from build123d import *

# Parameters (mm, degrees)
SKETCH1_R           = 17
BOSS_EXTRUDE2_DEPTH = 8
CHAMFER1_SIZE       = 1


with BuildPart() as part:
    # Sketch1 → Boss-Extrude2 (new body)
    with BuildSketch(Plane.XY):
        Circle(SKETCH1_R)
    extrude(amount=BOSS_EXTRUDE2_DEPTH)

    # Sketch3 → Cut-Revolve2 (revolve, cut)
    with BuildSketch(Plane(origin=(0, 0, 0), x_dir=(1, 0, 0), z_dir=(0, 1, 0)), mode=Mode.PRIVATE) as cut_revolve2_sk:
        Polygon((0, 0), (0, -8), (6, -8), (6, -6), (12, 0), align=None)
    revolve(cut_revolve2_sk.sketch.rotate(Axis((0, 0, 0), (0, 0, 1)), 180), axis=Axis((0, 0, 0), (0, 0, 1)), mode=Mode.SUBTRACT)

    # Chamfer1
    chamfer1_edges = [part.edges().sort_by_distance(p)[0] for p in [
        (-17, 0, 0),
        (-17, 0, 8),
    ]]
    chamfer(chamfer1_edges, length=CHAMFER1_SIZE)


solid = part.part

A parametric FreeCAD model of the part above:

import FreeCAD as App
import Part
import Sketcher

V = App.Vector
Q = App.Units.Quantity


def edges_at(feature, points):
    """Names of the edges that pass closest to the given points."""
    edges = feature.Shape.Edges
    near = lambda p: min(range(len(edges)), key=lambda i: edges[i].distToShape(Part.Vertex(*p))[0])
    return sorted({f"Edge{near(p) + 1}" for p in points})


def add_polygon(sketch, points):
    """Adds a closed chain of lines whose ends are joined by coincident constraints."""
    first, n = sketch.GeometryCount, len(points)
    for a, b in zip(points, points[1:] + points[:1]):
        sketch.addGeometry(Part.LineSegment(App.Vector(*a, 0), App.Vector(*b, 0)), False)
    for i in range(n):
        sketch.addConstraint(Sketcher.Constraint("Coincident", first + i, 2, first + (i + 1) % n, 1))

doc = App.newDocument("Part")
body = doc.addObject("PartDesign::Body", "Body")

# Sketch on XY plane
sketch1 = body.newObject("Sketcher::SketchObject", "Sketch")
sketch1.AttachmentSupport = (doc.getObject("XY_Plane"), [""])
sketch1.MapMode = "FlatFace"
sketch1.addGeometry(Part.Circle(V(0, 0, 0), V(0, 0, 1), 17), False)
sketch1.addConstraint(Sketcher.Constraint("Coincident", 0, 3, -1, 1))
sketch1.addConstraint(Sketcher.Constraint("Diameter", 0, Q("34 mm")))
pad1 = body.newObject("PartDesign::Pad", "Pad")
pad1.Profile = sketch1
pad1.Length = 8

# Sketch on XZ plane
sketch2 = body.newObject("Sketcher::SketchObject", "Sketch001")
sketch2.AttachmentSupport = (doc.getObject("XZ_Plane"), [""])
sketch2.MapMode = "FlatFace"
add_polygon(sketch2, [(0, 0), (0, 8), (6, 8), (6, 6), (12, 0)])  # lines 0-4
sketch2.addConstraint(Sketcher.Constraint("Vertical", 0))
sketch2.addConstraint(Sketcher.Constraint("Horizontal", 1))
sketch2.addConstraint(Sketcher.Constraint("Vertical", 2))
sketch2.addConstraint(Sketcher.Constraint("Horizontal", 4))
sketch2.addConstraint(Sketcher.Constraint("Coincident", 4, 2, -1, 1))
sketch2.addConstraint(Sketcher.Constraint("DistanceX", 1, 1, 1, 2, Q("6 mm")))
sketch2.addConstraint(Sketcher.Constraint("DistanceX", 4, 2, 4, 1, Q("12 mm")))
sketch2.addConstraint(Sketcher.Constraint("DistanceY", 0, 1, 0, 2, Q("8 mm")))
sketch2.addConstraint(Sketcher.Constraint("DistanceY", 2, 2, 2, 1, Q("2 mm")))
groove = body.newObject("PartDesign::Groove", "Groove")
groove.Profile = sketch2
groove.ReferenceAxis = (sketch2, ["V_Axis"])
groove.Angle = 360
doc.recompute()

chamfer = body.newObject("PartDesign::Chamfer", "Chamfer")
chamfer.Base = (groove, edges_at(groove, [(-17, 0, 0), (-17, 0, 8)]))
chamfer.Size = 1

doc.recompute()
